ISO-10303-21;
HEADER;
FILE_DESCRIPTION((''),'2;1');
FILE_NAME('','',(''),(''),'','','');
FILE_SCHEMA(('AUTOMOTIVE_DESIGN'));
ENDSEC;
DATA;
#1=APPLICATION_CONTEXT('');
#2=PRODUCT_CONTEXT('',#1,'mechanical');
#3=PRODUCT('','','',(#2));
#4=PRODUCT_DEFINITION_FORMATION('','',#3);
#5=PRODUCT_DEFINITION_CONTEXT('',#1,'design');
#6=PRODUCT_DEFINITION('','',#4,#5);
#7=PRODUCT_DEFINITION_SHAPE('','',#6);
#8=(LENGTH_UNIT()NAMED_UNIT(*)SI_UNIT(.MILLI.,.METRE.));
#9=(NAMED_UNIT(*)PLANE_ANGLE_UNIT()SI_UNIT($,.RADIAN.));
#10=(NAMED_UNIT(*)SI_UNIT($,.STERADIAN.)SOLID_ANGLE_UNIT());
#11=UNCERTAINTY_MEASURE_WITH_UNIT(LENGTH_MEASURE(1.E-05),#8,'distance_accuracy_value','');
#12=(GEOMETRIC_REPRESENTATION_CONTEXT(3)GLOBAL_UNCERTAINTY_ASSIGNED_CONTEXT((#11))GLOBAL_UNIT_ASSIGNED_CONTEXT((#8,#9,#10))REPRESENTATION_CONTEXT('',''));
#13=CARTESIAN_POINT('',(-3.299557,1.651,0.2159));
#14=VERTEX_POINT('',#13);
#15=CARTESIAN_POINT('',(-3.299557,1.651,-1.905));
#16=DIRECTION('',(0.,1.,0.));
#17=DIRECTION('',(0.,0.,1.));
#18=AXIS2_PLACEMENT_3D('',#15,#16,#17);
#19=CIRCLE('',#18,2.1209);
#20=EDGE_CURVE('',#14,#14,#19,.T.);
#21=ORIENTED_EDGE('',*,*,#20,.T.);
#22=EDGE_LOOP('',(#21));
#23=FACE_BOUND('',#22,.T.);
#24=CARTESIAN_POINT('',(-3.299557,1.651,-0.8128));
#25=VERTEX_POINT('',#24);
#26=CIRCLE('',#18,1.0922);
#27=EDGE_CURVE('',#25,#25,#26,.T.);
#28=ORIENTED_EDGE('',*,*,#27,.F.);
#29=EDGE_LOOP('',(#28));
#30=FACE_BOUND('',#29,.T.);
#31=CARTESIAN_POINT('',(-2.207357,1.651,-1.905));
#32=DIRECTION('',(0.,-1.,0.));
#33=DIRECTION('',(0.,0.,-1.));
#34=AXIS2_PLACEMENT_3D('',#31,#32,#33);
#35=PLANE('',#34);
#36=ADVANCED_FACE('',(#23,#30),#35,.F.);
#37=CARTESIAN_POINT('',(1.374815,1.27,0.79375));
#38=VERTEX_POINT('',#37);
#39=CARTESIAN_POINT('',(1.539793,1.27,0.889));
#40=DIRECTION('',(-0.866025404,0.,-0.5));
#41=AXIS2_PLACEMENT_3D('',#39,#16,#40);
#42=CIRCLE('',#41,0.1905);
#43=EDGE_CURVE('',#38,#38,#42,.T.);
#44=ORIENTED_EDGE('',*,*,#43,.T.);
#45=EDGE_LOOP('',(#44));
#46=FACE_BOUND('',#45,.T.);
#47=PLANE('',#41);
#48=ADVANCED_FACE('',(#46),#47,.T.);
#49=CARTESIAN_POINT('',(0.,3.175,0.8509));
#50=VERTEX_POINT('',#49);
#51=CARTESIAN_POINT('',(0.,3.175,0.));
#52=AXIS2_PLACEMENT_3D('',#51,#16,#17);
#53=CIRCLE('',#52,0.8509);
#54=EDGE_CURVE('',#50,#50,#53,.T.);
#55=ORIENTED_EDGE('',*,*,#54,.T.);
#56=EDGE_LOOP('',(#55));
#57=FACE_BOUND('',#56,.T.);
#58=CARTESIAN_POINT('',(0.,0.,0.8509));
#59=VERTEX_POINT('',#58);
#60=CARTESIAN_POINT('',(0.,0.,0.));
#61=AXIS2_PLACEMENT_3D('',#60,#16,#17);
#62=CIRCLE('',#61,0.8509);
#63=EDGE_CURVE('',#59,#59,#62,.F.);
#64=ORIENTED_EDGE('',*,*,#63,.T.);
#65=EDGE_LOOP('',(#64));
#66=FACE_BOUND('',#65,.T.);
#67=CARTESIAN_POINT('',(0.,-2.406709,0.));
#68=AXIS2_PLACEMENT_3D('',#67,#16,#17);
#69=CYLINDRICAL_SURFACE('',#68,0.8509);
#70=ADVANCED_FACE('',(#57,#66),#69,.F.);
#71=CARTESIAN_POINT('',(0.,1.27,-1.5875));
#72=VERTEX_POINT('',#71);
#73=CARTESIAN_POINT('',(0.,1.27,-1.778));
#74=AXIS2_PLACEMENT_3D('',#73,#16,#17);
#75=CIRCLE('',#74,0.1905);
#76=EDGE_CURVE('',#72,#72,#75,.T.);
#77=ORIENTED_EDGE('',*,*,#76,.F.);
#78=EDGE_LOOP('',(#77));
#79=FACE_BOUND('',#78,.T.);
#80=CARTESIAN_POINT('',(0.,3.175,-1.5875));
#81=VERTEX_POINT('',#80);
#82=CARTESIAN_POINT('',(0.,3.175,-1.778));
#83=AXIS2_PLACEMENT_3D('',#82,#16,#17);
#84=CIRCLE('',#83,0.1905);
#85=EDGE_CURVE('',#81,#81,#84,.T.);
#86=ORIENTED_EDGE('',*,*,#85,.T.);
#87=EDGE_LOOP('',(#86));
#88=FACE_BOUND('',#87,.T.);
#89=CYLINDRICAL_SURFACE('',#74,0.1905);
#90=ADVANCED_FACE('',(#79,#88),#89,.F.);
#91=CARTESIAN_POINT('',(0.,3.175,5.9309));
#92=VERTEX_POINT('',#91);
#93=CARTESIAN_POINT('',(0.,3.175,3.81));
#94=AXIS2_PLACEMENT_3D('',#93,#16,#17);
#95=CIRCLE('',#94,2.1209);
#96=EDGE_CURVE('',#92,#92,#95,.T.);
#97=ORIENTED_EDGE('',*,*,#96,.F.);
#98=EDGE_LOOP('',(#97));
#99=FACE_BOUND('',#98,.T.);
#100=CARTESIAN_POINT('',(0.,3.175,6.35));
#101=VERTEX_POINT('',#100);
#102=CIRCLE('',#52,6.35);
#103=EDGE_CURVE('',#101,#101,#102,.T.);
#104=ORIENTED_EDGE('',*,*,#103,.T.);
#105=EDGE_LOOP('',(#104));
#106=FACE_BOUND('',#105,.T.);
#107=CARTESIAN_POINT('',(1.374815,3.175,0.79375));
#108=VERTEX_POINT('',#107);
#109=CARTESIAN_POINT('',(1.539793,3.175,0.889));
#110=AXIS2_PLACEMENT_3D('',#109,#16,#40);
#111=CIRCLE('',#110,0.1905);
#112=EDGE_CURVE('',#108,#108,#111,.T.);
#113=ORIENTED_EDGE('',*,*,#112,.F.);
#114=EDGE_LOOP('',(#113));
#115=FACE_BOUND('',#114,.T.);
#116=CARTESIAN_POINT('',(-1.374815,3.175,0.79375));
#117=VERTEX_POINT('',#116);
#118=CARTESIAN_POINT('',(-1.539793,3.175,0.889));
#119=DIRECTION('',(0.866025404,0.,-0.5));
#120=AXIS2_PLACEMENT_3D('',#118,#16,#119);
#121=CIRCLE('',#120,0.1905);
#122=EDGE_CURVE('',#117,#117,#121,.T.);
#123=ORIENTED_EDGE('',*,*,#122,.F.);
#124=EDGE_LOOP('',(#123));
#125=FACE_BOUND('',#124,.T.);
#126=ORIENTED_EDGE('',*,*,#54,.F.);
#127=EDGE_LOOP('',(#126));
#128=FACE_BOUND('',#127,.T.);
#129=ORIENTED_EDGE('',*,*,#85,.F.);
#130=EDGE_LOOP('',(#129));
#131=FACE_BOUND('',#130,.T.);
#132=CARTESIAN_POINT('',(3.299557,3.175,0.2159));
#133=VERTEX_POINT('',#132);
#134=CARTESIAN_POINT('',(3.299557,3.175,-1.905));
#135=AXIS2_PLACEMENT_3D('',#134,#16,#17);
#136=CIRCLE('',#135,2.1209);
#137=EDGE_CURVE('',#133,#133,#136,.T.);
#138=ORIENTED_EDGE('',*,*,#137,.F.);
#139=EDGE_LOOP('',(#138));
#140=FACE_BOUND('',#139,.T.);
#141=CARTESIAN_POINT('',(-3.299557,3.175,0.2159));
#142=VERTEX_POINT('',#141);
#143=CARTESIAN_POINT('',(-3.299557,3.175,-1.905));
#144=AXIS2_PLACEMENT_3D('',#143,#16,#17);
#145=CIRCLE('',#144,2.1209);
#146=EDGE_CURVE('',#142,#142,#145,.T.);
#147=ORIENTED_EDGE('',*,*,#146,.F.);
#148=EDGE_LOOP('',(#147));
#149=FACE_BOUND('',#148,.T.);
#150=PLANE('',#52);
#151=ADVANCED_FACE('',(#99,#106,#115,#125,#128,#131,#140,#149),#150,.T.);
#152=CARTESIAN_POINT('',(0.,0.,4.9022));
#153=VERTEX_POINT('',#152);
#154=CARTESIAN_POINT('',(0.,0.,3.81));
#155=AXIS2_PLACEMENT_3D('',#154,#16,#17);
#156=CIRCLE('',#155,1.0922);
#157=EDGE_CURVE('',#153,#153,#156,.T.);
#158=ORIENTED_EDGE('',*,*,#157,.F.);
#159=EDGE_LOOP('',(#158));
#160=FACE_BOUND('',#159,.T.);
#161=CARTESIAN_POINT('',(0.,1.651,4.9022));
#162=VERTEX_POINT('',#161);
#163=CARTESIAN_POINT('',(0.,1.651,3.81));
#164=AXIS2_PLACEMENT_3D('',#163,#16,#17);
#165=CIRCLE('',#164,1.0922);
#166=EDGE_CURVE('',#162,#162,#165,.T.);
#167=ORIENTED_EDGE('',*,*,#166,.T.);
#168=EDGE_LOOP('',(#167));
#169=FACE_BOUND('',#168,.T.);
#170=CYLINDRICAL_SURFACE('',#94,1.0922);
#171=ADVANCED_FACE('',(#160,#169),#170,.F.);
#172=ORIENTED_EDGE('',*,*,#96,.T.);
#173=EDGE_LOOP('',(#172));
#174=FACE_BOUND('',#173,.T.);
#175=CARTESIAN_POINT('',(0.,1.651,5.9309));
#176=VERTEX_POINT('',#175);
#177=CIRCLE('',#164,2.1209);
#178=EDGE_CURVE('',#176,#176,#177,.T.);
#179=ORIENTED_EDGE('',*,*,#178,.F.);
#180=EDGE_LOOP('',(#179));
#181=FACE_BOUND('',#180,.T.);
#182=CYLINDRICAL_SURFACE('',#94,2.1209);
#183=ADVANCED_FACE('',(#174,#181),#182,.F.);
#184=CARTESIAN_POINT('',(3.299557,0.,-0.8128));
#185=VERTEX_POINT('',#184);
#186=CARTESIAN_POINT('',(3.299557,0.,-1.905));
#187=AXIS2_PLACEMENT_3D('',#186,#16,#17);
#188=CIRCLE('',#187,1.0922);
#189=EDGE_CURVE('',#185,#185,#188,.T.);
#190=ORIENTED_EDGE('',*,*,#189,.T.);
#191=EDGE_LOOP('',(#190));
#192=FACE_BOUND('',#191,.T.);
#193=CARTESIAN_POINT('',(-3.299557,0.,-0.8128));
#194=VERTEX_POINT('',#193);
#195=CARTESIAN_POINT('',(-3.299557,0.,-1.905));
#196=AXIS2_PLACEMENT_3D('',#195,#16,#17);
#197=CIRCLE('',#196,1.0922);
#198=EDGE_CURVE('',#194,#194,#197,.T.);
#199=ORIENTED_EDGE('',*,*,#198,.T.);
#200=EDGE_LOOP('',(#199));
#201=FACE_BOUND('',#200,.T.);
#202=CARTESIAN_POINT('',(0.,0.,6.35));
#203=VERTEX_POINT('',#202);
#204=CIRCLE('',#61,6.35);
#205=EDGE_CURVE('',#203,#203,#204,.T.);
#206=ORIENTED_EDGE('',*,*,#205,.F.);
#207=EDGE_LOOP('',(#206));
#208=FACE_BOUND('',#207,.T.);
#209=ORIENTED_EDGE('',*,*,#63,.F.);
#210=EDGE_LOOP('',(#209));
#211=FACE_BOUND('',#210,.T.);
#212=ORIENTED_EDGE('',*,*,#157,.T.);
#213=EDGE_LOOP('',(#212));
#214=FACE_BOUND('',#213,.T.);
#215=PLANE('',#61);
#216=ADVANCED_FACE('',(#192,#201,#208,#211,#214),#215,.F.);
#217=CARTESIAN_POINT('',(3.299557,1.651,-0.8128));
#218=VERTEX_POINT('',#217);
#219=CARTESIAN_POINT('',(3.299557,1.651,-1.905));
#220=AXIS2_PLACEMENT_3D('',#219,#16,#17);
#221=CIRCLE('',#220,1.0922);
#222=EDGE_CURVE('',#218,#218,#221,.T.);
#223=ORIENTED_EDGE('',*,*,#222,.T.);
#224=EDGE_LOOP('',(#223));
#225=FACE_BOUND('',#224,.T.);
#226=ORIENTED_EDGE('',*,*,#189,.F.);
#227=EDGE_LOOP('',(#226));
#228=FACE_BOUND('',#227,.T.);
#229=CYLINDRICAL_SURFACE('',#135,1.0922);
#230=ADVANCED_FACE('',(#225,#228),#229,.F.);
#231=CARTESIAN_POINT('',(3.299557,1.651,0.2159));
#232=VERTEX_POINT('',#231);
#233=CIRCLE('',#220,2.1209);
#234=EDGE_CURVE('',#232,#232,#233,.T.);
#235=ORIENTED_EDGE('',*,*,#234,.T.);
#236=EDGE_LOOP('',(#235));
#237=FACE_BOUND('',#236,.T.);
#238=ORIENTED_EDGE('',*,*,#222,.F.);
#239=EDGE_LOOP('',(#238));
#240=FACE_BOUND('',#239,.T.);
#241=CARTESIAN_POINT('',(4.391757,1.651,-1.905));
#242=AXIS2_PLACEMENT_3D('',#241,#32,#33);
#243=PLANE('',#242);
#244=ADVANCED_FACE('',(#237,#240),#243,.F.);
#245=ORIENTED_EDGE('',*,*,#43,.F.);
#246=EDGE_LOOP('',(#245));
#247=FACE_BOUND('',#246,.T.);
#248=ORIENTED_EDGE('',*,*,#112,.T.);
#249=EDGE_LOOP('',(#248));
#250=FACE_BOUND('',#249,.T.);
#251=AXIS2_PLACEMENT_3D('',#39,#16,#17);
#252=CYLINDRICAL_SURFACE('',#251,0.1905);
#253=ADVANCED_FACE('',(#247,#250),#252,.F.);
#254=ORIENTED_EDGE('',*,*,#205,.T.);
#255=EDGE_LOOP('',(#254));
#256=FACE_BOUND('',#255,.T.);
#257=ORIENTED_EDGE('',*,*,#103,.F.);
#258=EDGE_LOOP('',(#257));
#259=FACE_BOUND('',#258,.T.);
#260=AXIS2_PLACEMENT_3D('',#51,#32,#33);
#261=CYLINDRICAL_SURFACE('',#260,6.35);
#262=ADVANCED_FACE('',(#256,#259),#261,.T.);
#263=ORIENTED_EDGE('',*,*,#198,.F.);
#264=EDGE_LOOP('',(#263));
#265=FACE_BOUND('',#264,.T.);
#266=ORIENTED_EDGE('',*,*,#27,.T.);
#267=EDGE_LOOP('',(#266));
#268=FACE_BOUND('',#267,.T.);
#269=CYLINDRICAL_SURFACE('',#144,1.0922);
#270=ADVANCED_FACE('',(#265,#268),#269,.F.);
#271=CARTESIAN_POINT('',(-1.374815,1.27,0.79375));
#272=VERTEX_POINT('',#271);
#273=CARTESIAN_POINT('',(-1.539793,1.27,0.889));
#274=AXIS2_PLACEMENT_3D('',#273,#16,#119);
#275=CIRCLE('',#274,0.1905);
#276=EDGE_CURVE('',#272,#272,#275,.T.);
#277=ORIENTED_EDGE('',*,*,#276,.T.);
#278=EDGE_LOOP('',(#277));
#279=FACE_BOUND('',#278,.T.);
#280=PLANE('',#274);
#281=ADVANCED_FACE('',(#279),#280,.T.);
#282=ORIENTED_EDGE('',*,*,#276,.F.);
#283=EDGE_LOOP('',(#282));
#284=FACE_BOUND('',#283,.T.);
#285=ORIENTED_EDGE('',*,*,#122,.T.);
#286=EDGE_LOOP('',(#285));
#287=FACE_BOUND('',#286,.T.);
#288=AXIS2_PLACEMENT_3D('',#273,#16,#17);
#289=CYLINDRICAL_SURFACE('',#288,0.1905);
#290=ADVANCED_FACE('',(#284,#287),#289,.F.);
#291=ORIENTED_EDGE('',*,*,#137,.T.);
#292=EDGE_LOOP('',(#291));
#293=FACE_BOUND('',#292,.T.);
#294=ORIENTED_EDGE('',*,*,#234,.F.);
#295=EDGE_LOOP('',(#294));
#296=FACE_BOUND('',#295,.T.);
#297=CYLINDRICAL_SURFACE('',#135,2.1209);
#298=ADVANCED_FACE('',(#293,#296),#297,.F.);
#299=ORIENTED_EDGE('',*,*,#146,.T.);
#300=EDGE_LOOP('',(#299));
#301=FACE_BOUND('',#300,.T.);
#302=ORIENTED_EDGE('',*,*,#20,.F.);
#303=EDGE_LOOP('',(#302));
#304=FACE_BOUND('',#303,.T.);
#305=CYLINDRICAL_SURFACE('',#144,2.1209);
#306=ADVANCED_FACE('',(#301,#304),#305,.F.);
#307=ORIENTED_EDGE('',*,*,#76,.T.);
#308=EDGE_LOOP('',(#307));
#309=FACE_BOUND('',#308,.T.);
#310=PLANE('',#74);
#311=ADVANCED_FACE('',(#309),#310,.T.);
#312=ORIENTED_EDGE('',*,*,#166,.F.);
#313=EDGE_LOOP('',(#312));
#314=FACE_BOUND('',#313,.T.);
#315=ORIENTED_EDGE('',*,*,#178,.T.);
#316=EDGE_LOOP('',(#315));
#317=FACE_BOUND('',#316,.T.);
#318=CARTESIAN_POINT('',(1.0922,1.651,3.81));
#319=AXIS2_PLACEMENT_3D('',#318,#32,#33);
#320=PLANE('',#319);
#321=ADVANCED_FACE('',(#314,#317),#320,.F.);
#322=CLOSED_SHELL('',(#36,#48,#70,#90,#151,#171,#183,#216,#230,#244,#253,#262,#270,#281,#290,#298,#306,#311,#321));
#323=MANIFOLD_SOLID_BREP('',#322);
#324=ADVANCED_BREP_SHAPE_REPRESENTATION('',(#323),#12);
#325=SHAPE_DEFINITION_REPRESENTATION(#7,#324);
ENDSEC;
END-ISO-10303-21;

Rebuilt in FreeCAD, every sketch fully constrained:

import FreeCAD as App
import Part
import Sketcher
Q = App.Units.Quantity

doc = App.newDocument("Part")
body = doc.addObject("PartDesign::Body", "Body")

# Sketch on XZ plane
sketch1 = body.newObject("Sketcher::SketchObject", "Sketch")
sketch1.AttachmentSupport = (doc.getObject("XZ_Plane"), [""])
sketch1.MapMode = "FlatFace"
sketch1.addGeometry(Part.Circle(App.Vector(0, 0, 0), App.Vector(0, 0, 1), 6), False)
sketch1.addConstraint([
    Sketcher.Constraint("Coincident", 0, 3, -1, 1),
    Sketcher.Constraint("Diameter", 0, Q("0.5 in")),
])
pad1 = body.newObject("PartDesign::Pad", "Pad")
pad1.Profile = sketch1
pad1.Length = Q("0.125 in")
pad1.Reversed = True

# Sketch on XZ plane
sketch2 = body.newObject("Sketcher::SketchObject", "Sketch001")
sketch2.AttachmentSupport = (doc.getObject("XZ_Plane"), [""])
sketch2.MapMode = "FlatFace"
sketch2.AttachmentOffset = App.Placement(App.Vector(0, 0, -0.125 * 25.4), App.Rotation())
sketch2.addGeometry(Part.Circle(App.Vector(0, -1.78, 0), App.Vector(0, 0, 1), 0.19), False)
sketch2.addConstraint([
    Sketcher.Constraint("PointOnObject", 0, 3, -2),
    Sketcher.Constraint("Diameter", 0, Q("0.015 in")),
    Sketcher.Constraint("DistanceY", 0, 3, -1, 1, Q("0.07 in")),
])
pocket1 = body.newObject("PartDesign::Pocket", "Pocket")
pocket1.Profile = sketch2
pocket1.Length = Q("0.075 in")
pocket1.Reversed = True
doc.recompute()

polarpattern = body.newObject("PartDesign::PolarPattern", "PolarPattern")
polarpattern.Originals = [pocket1]
polarpattern.Axis = (doc.getObject("Y_Axis"), [""])
polarpattern.Angle = 360
polarpattern.Occurrences = 3
body.Tip = polarpattern

# Sketch on XZ plane
sketch3 = body.newObject("Sketcher::SketchObject", "Sketch002")
sketch3.AttachmentSupport = (doc.getObject("XZ_Plane"), [""])
sketch3.MapMode = "FlatFace"
sketch3.AttachmentOffset = App.Placement(App.Vector(0, 0, -0.125 * 25.4), App.Rotation())
sketch3.addGeometry(Part.Circle(App.Vector(0, 0, 0), App.Vector(0, 0, 1), 0.9), False)
sketch3.addConstraint([
    Sketcher.Constraint("Coincident", 0, 3, -1, 1),
    Sketcher.Constraint("Diameter", 0, Q("0.067 in")),
])
pocket2 = body.newObject("PartDesign::Pocket", "Pocket001")
pocket2.Profile = sketch3
pocket2.Length = Q("0.125 in")
pocket2.Reversed = True

# Sketch on XZ plane
sketch4 = body.newObject("Sketcher::SketchObject", "Sketch003")
sketch4.AttachmentSupport = (doc.getObject("XZ_Plane"), [""])
sketch4.MapMode = "FlatFace"
sketch4.AttachmentOffset = App.Placement(App.Vector(0, 0, -0.125 * 25.4), App.Rotation())
sketch4.addGeometry(Part.Circle(App.Vector(0, 3.8, 0), App.Vector(0, 0, 1), 1.1), False)
sketch4.addConstraint([
    Sketcher.Constraint("PointOnObject", 0, 3, -2),
    Sketcher.Constraint("Diameter", 0, Q("0.086 in")),
    Sketcher.Constraint("DistanceY", -1, 1, 0, 3, Q("0.15 in")),
])
doc.recompute()
hole = body.newObject("PartDesign::Hole", "Hole")
hole.Profile = sketch4
hole.ThreadType = "None"
hole.Diameter = Q("0.086 in")
hole.DepthType = "ThroughAll"
hole.HoleCutType = "Counterbore"
hole.HoleCutDiameter = Q("0.167 in")
hole.HoleCutDepth = Q("0.06 in")
hole.Reversed = True
doc.recompute()

polarpattern2 = body.newObject("PartDesign::PolarPattern", "PolarPattern001")
polarpattern2.Originals = [hole]
polarpattern2.Axis = (doc.getObject("Y_Axis"), [""])
polarpattern2.Angle = 360
polarpattern2.Occurrences = 3
body.Tip = polarpattern2

doc.recompute()
